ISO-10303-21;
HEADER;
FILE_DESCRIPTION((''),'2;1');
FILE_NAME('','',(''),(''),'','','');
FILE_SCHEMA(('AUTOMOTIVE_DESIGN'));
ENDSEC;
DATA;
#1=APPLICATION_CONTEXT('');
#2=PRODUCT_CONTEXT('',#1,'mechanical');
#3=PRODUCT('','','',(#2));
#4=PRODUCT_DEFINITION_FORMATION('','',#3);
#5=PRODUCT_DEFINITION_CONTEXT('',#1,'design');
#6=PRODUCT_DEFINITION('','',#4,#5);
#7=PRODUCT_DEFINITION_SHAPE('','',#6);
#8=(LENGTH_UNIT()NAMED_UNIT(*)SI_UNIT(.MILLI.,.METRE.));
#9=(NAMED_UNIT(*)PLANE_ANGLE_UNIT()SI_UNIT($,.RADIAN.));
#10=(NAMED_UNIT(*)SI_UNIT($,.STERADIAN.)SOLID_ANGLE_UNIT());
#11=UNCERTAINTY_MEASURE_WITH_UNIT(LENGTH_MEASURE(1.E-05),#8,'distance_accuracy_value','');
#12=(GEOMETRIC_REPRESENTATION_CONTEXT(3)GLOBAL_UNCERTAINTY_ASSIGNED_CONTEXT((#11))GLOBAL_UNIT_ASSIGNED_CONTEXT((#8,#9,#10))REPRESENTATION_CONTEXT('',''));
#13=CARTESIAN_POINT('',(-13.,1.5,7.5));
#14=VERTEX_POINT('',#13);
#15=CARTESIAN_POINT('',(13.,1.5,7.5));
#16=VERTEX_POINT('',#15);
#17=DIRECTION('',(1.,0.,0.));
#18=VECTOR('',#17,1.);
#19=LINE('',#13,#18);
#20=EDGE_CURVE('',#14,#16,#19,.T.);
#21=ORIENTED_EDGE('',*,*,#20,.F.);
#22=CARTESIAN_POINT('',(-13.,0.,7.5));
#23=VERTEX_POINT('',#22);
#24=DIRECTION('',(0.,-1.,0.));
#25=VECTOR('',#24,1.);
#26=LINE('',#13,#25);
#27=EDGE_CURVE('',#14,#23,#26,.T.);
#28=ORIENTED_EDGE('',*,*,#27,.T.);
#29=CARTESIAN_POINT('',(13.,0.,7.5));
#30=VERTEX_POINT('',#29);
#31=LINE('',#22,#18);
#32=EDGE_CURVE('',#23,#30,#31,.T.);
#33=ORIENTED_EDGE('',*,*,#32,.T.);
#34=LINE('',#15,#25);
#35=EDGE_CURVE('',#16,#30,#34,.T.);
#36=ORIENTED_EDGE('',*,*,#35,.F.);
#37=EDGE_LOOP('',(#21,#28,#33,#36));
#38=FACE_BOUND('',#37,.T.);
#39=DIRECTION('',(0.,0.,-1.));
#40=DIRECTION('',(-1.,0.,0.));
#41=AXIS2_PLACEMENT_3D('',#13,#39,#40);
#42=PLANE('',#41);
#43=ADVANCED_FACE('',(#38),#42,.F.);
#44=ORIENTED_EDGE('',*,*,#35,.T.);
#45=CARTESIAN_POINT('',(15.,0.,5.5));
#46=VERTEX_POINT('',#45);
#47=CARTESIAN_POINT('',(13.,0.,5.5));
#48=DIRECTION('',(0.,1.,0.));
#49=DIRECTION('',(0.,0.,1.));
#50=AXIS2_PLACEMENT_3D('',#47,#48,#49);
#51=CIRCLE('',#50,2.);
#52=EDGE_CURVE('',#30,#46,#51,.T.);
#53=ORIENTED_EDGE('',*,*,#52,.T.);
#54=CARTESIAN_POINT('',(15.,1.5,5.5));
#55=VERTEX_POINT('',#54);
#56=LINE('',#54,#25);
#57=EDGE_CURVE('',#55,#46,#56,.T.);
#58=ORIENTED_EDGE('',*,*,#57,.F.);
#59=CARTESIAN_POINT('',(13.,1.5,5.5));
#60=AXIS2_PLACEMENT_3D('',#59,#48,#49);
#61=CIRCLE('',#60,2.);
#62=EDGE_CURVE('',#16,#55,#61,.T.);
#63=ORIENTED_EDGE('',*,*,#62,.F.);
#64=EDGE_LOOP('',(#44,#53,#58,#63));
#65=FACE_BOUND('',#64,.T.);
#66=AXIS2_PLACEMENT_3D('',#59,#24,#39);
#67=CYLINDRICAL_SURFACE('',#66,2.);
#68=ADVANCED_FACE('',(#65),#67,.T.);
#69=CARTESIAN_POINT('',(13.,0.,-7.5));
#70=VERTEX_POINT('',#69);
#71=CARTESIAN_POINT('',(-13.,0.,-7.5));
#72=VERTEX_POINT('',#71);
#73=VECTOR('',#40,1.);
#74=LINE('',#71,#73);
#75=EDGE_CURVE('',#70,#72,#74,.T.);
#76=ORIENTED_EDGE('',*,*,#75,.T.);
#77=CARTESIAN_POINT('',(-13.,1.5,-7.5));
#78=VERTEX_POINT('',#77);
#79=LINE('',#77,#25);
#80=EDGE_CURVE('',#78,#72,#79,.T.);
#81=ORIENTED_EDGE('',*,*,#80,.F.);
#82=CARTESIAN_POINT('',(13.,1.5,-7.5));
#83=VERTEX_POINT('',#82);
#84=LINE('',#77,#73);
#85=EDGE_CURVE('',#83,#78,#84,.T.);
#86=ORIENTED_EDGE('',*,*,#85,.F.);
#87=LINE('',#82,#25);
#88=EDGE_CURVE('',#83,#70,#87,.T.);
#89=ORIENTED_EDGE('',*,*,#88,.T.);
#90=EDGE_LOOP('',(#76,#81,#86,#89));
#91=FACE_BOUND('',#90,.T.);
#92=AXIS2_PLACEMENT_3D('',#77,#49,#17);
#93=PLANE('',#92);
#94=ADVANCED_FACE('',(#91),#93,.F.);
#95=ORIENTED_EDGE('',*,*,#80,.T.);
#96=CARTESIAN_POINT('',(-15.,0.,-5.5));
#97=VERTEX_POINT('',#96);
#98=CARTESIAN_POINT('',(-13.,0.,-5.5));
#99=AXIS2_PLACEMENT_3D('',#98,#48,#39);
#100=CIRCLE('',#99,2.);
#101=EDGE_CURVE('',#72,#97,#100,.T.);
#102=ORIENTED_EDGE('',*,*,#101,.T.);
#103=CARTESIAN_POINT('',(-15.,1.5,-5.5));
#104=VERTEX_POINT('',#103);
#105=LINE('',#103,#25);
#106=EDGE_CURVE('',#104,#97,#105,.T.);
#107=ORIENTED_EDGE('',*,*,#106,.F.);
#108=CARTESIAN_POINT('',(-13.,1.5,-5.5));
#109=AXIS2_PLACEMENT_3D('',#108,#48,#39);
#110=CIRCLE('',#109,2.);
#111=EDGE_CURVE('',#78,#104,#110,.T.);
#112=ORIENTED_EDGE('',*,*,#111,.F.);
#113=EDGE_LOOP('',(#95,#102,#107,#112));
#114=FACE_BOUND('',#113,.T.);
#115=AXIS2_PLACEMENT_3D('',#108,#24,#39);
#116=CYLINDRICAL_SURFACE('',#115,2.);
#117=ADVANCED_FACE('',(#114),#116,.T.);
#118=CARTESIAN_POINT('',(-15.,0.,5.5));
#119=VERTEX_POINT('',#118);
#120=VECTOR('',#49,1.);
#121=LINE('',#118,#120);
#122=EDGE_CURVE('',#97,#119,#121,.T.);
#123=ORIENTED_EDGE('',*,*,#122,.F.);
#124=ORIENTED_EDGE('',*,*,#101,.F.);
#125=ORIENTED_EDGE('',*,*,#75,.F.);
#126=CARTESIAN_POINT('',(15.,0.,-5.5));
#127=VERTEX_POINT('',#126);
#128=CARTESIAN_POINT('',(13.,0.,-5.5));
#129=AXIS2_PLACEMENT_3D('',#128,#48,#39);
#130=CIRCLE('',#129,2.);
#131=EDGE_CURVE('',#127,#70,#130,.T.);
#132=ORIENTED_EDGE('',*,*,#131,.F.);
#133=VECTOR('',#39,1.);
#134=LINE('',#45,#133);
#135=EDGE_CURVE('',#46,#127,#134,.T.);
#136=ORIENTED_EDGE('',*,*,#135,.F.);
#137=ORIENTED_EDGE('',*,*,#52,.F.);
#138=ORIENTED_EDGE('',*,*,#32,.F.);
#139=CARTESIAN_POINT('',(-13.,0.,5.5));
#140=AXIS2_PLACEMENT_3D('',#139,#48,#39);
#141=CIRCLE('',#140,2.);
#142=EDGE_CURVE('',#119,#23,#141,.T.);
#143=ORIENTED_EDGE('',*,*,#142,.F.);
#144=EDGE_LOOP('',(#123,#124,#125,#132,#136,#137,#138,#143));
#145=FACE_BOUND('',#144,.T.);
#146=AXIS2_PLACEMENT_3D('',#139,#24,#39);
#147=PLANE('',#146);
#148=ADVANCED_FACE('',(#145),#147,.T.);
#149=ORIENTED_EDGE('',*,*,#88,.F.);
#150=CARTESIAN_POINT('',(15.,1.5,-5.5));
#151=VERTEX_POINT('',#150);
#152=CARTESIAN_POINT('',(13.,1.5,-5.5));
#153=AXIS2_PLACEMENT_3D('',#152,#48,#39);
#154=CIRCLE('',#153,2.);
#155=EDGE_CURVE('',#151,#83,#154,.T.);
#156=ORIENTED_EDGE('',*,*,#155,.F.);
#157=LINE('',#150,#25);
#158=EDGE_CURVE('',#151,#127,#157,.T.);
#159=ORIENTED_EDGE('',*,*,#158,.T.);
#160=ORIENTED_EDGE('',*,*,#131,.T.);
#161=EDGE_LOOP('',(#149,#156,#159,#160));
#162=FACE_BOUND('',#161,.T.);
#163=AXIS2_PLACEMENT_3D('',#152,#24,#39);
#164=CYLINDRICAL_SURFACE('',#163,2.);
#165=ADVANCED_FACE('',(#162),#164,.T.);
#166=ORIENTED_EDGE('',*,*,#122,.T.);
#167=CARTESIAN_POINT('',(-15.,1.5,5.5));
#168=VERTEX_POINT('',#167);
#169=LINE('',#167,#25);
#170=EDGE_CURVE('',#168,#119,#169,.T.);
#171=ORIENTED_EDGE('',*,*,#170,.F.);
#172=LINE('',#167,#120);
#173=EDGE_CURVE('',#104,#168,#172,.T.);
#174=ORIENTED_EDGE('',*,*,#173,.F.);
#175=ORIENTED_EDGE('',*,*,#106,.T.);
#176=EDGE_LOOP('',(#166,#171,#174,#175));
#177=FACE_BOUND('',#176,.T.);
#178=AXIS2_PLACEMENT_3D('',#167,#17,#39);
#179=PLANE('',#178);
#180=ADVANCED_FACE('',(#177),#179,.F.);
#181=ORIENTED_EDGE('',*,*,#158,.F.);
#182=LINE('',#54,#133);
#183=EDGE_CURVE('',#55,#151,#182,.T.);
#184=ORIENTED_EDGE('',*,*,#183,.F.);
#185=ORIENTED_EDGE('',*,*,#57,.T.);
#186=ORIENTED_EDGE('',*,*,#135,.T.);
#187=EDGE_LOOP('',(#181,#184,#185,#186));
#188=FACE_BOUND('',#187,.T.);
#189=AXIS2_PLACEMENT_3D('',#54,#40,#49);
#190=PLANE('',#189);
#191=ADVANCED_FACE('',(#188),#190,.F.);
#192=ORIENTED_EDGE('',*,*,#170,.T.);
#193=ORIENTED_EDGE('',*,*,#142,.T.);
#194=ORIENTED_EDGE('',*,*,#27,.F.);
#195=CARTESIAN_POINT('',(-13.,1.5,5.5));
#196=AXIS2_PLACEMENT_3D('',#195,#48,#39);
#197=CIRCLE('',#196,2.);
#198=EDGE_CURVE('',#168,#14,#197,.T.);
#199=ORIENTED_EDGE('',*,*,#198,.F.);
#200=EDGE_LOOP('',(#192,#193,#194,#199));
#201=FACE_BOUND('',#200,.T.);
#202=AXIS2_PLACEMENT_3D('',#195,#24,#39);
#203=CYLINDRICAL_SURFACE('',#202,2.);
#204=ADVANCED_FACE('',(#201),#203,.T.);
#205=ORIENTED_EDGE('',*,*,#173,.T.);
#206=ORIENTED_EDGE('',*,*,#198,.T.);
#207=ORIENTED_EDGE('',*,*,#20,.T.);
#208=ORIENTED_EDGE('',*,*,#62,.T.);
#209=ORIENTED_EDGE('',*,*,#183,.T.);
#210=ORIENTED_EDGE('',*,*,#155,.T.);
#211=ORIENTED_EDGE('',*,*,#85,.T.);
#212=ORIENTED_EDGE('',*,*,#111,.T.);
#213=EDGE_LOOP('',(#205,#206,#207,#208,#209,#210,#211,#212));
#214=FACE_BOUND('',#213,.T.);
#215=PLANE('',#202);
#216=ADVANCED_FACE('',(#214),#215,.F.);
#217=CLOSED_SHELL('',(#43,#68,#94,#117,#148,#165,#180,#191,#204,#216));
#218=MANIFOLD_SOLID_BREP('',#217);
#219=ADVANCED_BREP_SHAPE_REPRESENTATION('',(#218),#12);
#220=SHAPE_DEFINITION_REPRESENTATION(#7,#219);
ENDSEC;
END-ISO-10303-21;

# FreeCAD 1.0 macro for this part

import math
import FreeCAD as App
import Part
import Sketcher
Q = App.Units.Quantity

doc = App.newDocument("Part")
body = doc.addObject("PartDesign::Body", "Body")

# Sketch on XZ plane
sketch1 = body.newObject("Sketcher::SketchObject", "Sketch")
sketch1.AttachmentSupport = (doc.getObject("XZ_Plane"), [""])
sketch1.MapMode = "FlatFace"
sketch1.addGeometry(Part.LineSegment(App.Vector(-13, 7.5, 0), App.Vector(13, 7.5, 0)), False)
sketch1.addGeometry(Part.ArcOfCircle(Part.Circle(App.Vector(13, 5.5, 0), App.Vector(0, 0, 1), 2), math.radians(0), math.radians(90)), False)
sketch1.addGeometry(Part.LineSegment(App.Vector(15, 5.5, 0), App.Vector(15, -5.5, 0)), False)
sketch1.addGeometry(Part.ArcOfCircle(Part.Circle(App.Vector(13, -5.5, 0), App.Vector(0, 0, 1), 2), math.radians(-90), math.radians(0)), False)
sketch1.addGeometry(Part.LineSegment(App.Vector(13, -7.5, 0), App.Vector(-13, -7.5, 0)), False)
sketch1.addGeometry(Part.ArcOfCircle(Part.Circle(App.Vector(-13, -5.5, 0), App.Vector(0, 0, 1), 2), math.radians(-180), math.radians(-90)), False)
sketch1.addGeometry(Part.LineSegment(App.Vector(-15, -5.5, 0), App.Vector(-15, 5.5, 0)), False)
sketch1.addGeometry(Part.ArcOfCircle(Part.Circle(App.Vector(-13, 5.5, 0), App.Vector(0, 0, 1), 2), math.radians(90), math.radians(180)), False)
sketch1.addConstraint(Sketcher.Constraint("Tangent", 0, 2, 1, 2))
sketch1.addConstraint(Sketcher.Constraint("Tangent", 1, 1, 2, 1))
sketch1.addConstraint(Sketcher.Constraint("Tangent", 2, 2, 3, 2))
sketch1.addConstraint(Sketcher.Constraint("Tangent", 3, 1, 4, 1))
sketch1.addConstraint(Sketcher.Constraint("Tangent", 4, 2, 5, 2))
sketch1.addConstraint(Sketcher.Constraint("Tangent", 5, 1, 6, 1))
sketch1.addConstraint(Sketcher.Constraint("Tangent", 6, 2, 7, 2))
sketch1.addConstraint(Sketcher.Constraint("Tangent", 7, 1, 0, 1))
sketch1.addConstraint(Sketcher.Constraint("Horizontal", 0))
sketch1.addConstraint(Sketcher.Constraint("Vertical", 2))
sketch1.addConstraint(Sketcher.Constraint("Horizontal", 4))
sketch1.addConstraint(Sketcher.Constraint("Vertical", 6))
sketch1.addConstraint(Sketcher.Constraint("Equal", 1, 3))
sketch1.addConstraint(Sketcher.Constraint("Equal", 3, 5))
sketch1.addConstraint(Sketcher.Constraint("Equal", 5, 7))
sketch1.addConstraint(Sketcher.Constraint("Symmetric", 1, 3, 5, 3, -1, 1))
sketch1.addConstraint(Sketcher.Constraint("Radius", 1, Q("2 mm")))
sketch1.addConstraint(Sketcher.Constraint("DistanceX", 0, 1, 0, 2, Q("26 mm")))
sketch1.addConstraint(Sketcher.Constraint("DistanceY", 2, 2, 2, 1, Q("11 mm")))
pad1 = body.newObject("PartDesign::Pad", "Pad")
pad1.Profile = sketch1
pad1.Length = 1.5
pad1.Reversed = True

doc.recompute()
